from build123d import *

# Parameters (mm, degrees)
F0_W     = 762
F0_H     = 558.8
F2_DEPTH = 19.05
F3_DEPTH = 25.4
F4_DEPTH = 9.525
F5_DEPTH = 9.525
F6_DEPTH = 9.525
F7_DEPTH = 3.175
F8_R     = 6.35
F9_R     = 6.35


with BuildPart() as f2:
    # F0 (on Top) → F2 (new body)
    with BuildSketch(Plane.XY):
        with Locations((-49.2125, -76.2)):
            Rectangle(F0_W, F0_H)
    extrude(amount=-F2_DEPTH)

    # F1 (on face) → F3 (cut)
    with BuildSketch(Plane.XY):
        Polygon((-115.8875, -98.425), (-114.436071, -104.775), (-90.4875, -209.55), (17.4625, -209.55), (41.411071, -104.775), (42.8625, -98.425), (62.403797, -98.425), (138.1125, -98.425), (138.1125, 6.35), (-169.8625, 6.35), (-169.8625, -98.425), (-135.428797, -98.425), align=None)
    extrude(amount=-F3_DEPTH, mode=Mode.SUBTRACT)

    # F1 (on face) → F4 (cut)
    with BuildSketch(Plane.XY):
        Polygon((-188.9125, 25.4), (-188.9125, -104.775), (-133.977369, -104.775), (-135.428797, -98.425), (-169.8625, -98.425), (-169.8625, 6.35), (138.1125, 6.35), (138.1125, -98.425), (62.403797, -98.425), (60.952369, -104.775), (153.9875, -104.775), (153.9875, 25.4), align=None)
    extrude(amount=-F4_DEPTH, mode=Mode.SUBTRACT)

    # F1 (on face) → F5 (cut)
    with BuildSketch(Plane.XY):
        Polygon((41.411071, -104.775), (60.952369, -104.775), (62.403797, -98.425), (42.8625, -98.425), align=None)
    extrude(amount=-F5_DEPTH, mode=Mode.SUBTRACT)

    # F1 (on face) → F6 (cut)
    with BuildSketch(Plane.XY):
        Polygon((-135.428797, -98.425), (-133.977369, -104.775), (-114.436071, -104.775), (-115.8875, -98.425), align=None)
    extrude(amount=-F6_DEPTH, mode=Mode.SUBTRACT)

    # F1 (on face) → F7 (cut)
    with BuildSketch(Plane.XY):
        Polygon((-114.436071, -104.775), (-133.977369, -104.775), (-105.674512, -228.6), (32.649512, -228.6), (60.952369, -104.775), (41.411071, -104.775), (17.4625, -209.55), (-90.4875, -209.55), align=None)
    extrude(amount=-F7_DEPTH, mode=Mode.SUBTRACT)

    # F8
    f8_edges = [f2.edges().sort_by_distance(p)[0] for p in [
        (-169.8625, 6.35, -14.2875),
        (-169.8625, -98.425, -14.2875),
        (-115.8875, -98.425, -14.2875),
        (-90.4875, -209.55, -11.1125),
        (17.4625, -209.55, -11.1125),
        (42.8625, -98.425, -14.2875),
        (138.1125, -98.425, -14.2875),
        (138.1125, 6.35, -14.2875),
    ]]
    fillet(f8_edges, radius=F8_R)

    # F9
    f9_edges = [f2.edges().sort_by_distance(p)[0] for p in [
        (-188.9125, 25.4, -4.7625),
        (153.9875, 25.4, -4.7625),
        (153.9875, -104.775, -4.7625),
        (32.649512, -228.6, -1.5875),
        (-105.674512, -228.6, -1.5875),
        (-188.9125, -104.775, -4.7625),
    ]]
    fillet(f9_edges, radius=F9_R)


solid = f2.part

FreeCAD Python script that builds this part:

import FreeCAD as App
import Part
import Sketcher
Q = App.Units.Quantity


def edges_at(feature, points):
    """Names of the edges that pass closest to the given points."""
    edges = feature.Shape.Edges
    near = lambda p: min(range(len(edges)), key=lambda i: edges[i].distToShape(Part.Vertex(*p))[0])
    return sorted({f"Edge{near(p) + 1}" for p in points})


def add_polygon(sketch, points):
    """Adds a closed chain of lines whose ends are joined by coincident constraints."""
    first, n = sketch.GeometryCount, len(points)
    for a, b in zip(points, points[1:] + points[:1]):
        sketch.addGeometry(Part.LineSegment(App.Vector(*a, 0), App.Vector(*b, 0)), False)
    for i in range(n):
        sketch.addConstraint(Sketcher.Constraint("Coincident", first + i, 2, first + (i + 1) % n, 1))

doc = App.newDocument("Part")
body = doc.addObject("PartDesign::Body", "Body")

# Sketch on XY plane
sketch1 = doc.addObject("Sketcher::SketchObject", "Sketch")
body.addObject(sketch1)
sketch1.AttachmentSupport = (doc.XY_Plane, [""])
sketch1.MapMode = "FlatFace"
add_polygon(sketch1, [(-430.2125, 203.2), (-430.2125, -355.6), (331.7875, -355.6), (331.7875, 203.2)])  # lines 0-3
sketch1.addConstraint([
    Sketcher.Constraint("Vertical", 0),
    Sketcher.Constraint("Horizontal", 1),
    Sketcher.Constraint("Vertical", 2),
    Sketcher.Constraint("Horizontal", 3),
    Sketcher.Constraint("DistanceX", 1, 1, 1, 2, Q("30 in")),
    Sketcher.Constraint("DistanceY", 0, 2, 0, 1, Q("22 in")),
    Sketcher.Constraint("DistanceY", 0, 2, -1, 1, Q("14 in")),
    Sketcher.Constraint("DistanceX", 0, 2, -1, 1, Q("16.9375 in")),
])
pad1 = doc.addObject("PartDesign::Pad", "Pad")
body.addObject(pad1)
pad1.Profile = sketch1
pad1.Length = Q("0.75 in")
pad1.Reversed = True

# Sketch on XY plane
sketch2 = doc.addObject("Sketcher::SketchObject", "Sketch001")
body.addObject(sketch2)
sketch2.AttachmentSupport = (doc.XY_Plane, [""])
sketch2.MapMode = "FlatFace"
add_polygon(sketch2, [(-115.8875, -98.425), (-114.436071, -104.775), (-90.4875, -209.55), (17.4625, -209.55), (41.411071, -104.775), (42.8625, -98.425), (138.1125, -98.425), (138.1125, 6.35), (-169.8625, 6.35), (-169.8625, -98.425)])  # lines 0-9
sketch2.addConstraint([
    Sketcher.Constraint("Horizontal", 2),
    Sketcher.Constraint("Horizontal", 5),
    Sketcher.Constraint("Vertical", 6),
    Sketcher.Constraint("Horizontal", 7),
    Sketcher.Constraint("Vertical", 8),
    Sketcher.Constraint("Horizontal", 9),
    Sketcher.Constraint("Parallel", 0, 1),
    Sketcher.Constraint("Parallel", 3, 4),
    Sketcher.Constraint("Horizontal", 0, 2, 3, 2),
    Sketcher.Constraint("Horizontal", 5, 2, 8, 2),
    Sketcher.Constraint("Equal", 1, 3),
    Sketcher.Constraint("DistanceX", 2, 2, 4, 2, Q("1 in")),
    Sketcher.Constraint("DistanceX", 1, 2, 5, 2, Q("9 in")),
    Sketcher.Constraint("DistanceX", 2, 1, 2, 2, Q("4.25 in")),
    Sketcher.Constraint("DistanceY", 2, 2, 6, 2, Q("8.5 in")),
    Sketcher.Constraint("DistanceX", 7, 2, 7, 1, Q("12.125 in")),
    Sketcher.Constraint("DistanceY", 6, 1, 6, 2, Q("4.125 in")),
    Sketcher.Constraint("DistanceY", 1, 2, -1, 1, Q("8.25 in")),
    Sketcher.Constraint("DistanceY", 3, 2, 4, 2, Q("0.25 in")),
    Sketcher.Constraint("DistanceX", 1, 2, -1, 1, Q("3.5625 in")),
])
pocket1 = doc.addObject("PartDesign::Pocket", "Pocket")
body.addObject(pocket1)
pocket1.Profile = sketch2
pocket1.Length = Q("1 in")

# Sketch on XY plane
sketch3 = doc.addObject("Sketcher::SketchObject", "Sketch002")
body.addObject(sketch3)
sketch3.AttachmentSupport = (doc.XY_Plane, [""])
sketch3.MapMode = "FlatFace"
add_polygon(sketch3, [(-188.9125, 25.4), (-188.9125, -104.775), (-133.977369, -104.775), (-135.428797, -98.425), (-169.8625, -98.425), (-169.8625, 6.35), (138.1125, 6.35), (138.1125, -98.425), (62.403797, -98.425), (60.952369, -104.775), (153.9875, -104.775), (153.9875, 25.4)])  # lines 0-11
sketch3.addConstraint([
    Sketcher.Constraint("Vertical", 0),
    Sketcher.Constraint("Horizontal", 1),
    Sketcher.Constraint("Horizontal", 3),
    Sketcher.Constraint("Vertical", 4),
    Sketcher.Constraint("Horizontal", 5),
    Sketcher.Constraint("Vertical", 6),
    Sketcher.Constraint("Horizontal", 7),
    Sketcher.Constraint("Horizontal", 9),
    Sketcher.Constraint("Vertical", 10),
    Sketcher.Constraint("Horizontal", 11),
    Sketcher.Constraint("Horizontal", 3, 2, 6, 2),
    Sketcher.Constraint("Horizontal", 1, 2, 8, 2),
    Sketcher.Constraint("Equal", 2, 8),
    Sketcher.Constraint("DistanceX", 11, 2, 11, 1, Q("13.5 in")),
    Sketcher.Constraint("DistanceY", -1, 1, 10, 2, Q("1 in")),
    Sketcher.Constraint("DistanceX", 5, 1, 5, 2, Q("12.125 in")),
    Sketcher.Constraint("DistanceY", 0, 2, 0, 1, Q("5.125 in")),
    Sketcher.Constraint("DistanceY", 4, 1, 4, 2, Q("4.125 in")),
    Sketcher.Constraint("DistanceY", -1, 1, 4, 2, Q("0.25 in")),
    Sketcher.Constraint("DistanceX", 0, 2, 3, 2, Q("0.75 in")),
    Sketcher.Constraint("DistanceX", 0, 2, -1, 1, Q("7.4375 in")),
    Sketcher.Constraint("DistanceX", 1, 1, 1, 2, Q("54.935131 mm")),
    Sketcher.Constraint("DistanceX", 9, 1, 9, 2, Q("93.035131 mm")),
    Sketcher.Constraint("DistanceX", 3, 2, 3, 1, Q("34.433703 mm")),
])
pocket2 = doc.addObject("PartDesign::Pocket", "Pocket001")
body.addObject(pocket2)
pocket2.Profile = sketch3
pocket2.Length = Q("0.375 in")

# Sketch on XY plane
sketch4 = doc.addObject("Sketcher::SketchObject", "Sketch003")
body.addObject(sketch4)
sketch4.AttachmentSupport = (doc.XY_Plane, [""])
sketch4.MapMode = "FlatFace"
add_polygon(sketch4, [(41.411071, -104.775), (60.952369, -104.775), (62.403797, -98.425), (42.8625, -98.425)])  # lines 0-3
sketch4.addConstraint([
    Sketcher.Constraint("Horizontal", 0),
    Sketcher.Constraint("Horizontal", 2),
    Sketcher.Constraint("Parallel", 1, 3),
    Sketcher.Constraint("DistanceY", 0, 2, 1, 2, Q("0.25 in")),
    Sketcher.Constraint("DistanceY", 0, 2, -1, 1, Q("4.125 in")),
    Sketcher.Constraint("DistanceX", -1, 1, 2, 2, Q("1.6875 in")),
    Sketcher.Constraint("DistanceX", 0, 1, 0, 2, Q("19.541298 mm")),
    Sketcher.Constraint("DistanceX", -1, 1, 0, 2, Q("60.952369 mm")),
])
pocket3 = doc.addObject("PartDesign::Pocket", "Pocket002")
body.addObject(pocket3)
pocket3.Profile = sketch4
pocket3.Length = Q("0.375 in")

# Sketch on XY plane
sketch5 = doc.addObject("Sketcher::SketchObject", "Sketch004")
body.addObject(sketch5)
sketch5.AttachmentSupport = (doc.XY_Plane, [""])
sketch5.MapMode = "FlatFace"
add_polygon(sketch5, [(-135.428797, -98.425), (-133.977369, -104.775), (-114.436071, -104.775), (-115.8875, -98.425)])  # lines 0-3
sketch5.addConstraint([
    Sketcher.Constraint("Horizontal", 1),
    Sketcher.Constraint("Horizontal", 3),
    Sketcher.Constraint("Parallel", 0, 2),
    Sketcher.Constraint("DistanceY", 1, 2, 2, 2, Q("0.25 in")),
    Sketcher.Constraint("DistanceY", 0, 2, -1, 1, Q("4.125 in")),
    Sketcher.Constraint("DistanceX", 2, 2, -1, 1, Q("4.5625 in")),
    Sketcher.Constraint("DistanceX", 1, 1, 1, 2, Q("19.541298 mm")),
    Sketcher.Constraint("DistanceX", 0, 2, -1, 1, Q("133.977369 mm")),
])
pocket4 = doc.addObject("PartDesign::Pocket", "Pocket003")
body.addObject(pocket4)
pocket4.Profile = sketch5
pocket4.Length = Q("0.375 in")

# Sketch on XY plane
sketch6 = doc.addObject("Sketcher::SketchObject", "Sketch005")
body.addObject(sketch6)
sketch6.AttachmentSupport = (doc.XY_Plane, [""])
sketch6.MapMode = "FlatFace"
add_polygon(sketch6, [(-114.436071, -104.775), (-133.977369, -104.775), (-105.674512, -228.6), (32.649512, -228.6), (60.952369, -104.775), (41.411071, -104.775), (17.4625, -209.55), (-90.4875, -209.55)])  # lines 0-7
sketch6.addConstraint([
    Sketcher.Constraint("Horizontal", 0),
    Sketcher.Constraint("Horizontal", 2),
    Sketcher.Constraint("Horizontal", 4),
    Sketcher.Constraint("Horizontal", 6),
    Sketcher.Constraint("Parallel", 3, 5),
    Sketcher.Constraint("Parallel", 1, 7),
    Sketcher.Constraint("Horizontal", 0, 2, 3, 2),
    Sketcher.Constraint("Equal", 0, 4),
    Sketcher.Constraint("Equal", 1, 3),
    Sketcher.Constraint("DistanceY", 1, 2, -1, 1, Q("9 in")),
    Sketcher.Constraint("DistanceX", 6, 2, 6, 1, Q("4.25 in")),
    Sketcher.Constraint("DistanceY", 5, 2, -1, 1, Q("8.25 in")),
    Sketcher.Constraint("DistanceY", 0, 2, -1, 1, Q("4.125 in")),
    Sketcher.Constraint("DistanceX", -1, 1, 5, 2, Q("0.6875 in")),
    Sketcher.Constraint("DistanceX", 0, 2, 0, 1, Q("19.541298 mm")),
    Sketcher.Constraint("DistanceX", 2, 1, 2, 2, Q("138.324024 mm")),
])
pocket5 = doc.addObject("PartDesign::Pocket", "Pocket004")
body.addObject(pocket5)
pocket5.Profile = sketch6
pocket5.Length = Q("0.125 in")
doc.recompute()

fillet = doc.addObject("PartDesign::Fillet", "Fillet")
body.addObject(fillet)
fillet.Base = (pocket5, edges_at(pocket5, [
    (-169.863, 6.35, -14.287),
    (-169.863, -98.425, -14.287),
    (-115.888, -98.425, -14.287),
    (-90.487, -209.55, -11.113),
    (17.462, -209.55, -11.113),
    (42.862, -98.425, -14.287),
    (138.113, -98.425, -14.287),
    (138.113, 6.35, -14.287),
]))
fillet.Radius = Q("0.25 in")
doc.recompute()

fillet2 = doc.addObject("PartDesign::Fillet", "Fillet001")
body.addObject(fillet2)
fillet2.Base = (fillet, edges_at(fillet, [
    (-188.912, 25.4, -4.763),
    (153.988, 25.4, -4.763),
    (153.988, -104.775, -4.763),
    (32.65, -228.6, -1.587),
    (-105.675, -228.6, -1.587),
    (-188.912, -104.775, -4.763),
]))
fillet2.Radius = Q("0.25 in")

doc.recompute()
